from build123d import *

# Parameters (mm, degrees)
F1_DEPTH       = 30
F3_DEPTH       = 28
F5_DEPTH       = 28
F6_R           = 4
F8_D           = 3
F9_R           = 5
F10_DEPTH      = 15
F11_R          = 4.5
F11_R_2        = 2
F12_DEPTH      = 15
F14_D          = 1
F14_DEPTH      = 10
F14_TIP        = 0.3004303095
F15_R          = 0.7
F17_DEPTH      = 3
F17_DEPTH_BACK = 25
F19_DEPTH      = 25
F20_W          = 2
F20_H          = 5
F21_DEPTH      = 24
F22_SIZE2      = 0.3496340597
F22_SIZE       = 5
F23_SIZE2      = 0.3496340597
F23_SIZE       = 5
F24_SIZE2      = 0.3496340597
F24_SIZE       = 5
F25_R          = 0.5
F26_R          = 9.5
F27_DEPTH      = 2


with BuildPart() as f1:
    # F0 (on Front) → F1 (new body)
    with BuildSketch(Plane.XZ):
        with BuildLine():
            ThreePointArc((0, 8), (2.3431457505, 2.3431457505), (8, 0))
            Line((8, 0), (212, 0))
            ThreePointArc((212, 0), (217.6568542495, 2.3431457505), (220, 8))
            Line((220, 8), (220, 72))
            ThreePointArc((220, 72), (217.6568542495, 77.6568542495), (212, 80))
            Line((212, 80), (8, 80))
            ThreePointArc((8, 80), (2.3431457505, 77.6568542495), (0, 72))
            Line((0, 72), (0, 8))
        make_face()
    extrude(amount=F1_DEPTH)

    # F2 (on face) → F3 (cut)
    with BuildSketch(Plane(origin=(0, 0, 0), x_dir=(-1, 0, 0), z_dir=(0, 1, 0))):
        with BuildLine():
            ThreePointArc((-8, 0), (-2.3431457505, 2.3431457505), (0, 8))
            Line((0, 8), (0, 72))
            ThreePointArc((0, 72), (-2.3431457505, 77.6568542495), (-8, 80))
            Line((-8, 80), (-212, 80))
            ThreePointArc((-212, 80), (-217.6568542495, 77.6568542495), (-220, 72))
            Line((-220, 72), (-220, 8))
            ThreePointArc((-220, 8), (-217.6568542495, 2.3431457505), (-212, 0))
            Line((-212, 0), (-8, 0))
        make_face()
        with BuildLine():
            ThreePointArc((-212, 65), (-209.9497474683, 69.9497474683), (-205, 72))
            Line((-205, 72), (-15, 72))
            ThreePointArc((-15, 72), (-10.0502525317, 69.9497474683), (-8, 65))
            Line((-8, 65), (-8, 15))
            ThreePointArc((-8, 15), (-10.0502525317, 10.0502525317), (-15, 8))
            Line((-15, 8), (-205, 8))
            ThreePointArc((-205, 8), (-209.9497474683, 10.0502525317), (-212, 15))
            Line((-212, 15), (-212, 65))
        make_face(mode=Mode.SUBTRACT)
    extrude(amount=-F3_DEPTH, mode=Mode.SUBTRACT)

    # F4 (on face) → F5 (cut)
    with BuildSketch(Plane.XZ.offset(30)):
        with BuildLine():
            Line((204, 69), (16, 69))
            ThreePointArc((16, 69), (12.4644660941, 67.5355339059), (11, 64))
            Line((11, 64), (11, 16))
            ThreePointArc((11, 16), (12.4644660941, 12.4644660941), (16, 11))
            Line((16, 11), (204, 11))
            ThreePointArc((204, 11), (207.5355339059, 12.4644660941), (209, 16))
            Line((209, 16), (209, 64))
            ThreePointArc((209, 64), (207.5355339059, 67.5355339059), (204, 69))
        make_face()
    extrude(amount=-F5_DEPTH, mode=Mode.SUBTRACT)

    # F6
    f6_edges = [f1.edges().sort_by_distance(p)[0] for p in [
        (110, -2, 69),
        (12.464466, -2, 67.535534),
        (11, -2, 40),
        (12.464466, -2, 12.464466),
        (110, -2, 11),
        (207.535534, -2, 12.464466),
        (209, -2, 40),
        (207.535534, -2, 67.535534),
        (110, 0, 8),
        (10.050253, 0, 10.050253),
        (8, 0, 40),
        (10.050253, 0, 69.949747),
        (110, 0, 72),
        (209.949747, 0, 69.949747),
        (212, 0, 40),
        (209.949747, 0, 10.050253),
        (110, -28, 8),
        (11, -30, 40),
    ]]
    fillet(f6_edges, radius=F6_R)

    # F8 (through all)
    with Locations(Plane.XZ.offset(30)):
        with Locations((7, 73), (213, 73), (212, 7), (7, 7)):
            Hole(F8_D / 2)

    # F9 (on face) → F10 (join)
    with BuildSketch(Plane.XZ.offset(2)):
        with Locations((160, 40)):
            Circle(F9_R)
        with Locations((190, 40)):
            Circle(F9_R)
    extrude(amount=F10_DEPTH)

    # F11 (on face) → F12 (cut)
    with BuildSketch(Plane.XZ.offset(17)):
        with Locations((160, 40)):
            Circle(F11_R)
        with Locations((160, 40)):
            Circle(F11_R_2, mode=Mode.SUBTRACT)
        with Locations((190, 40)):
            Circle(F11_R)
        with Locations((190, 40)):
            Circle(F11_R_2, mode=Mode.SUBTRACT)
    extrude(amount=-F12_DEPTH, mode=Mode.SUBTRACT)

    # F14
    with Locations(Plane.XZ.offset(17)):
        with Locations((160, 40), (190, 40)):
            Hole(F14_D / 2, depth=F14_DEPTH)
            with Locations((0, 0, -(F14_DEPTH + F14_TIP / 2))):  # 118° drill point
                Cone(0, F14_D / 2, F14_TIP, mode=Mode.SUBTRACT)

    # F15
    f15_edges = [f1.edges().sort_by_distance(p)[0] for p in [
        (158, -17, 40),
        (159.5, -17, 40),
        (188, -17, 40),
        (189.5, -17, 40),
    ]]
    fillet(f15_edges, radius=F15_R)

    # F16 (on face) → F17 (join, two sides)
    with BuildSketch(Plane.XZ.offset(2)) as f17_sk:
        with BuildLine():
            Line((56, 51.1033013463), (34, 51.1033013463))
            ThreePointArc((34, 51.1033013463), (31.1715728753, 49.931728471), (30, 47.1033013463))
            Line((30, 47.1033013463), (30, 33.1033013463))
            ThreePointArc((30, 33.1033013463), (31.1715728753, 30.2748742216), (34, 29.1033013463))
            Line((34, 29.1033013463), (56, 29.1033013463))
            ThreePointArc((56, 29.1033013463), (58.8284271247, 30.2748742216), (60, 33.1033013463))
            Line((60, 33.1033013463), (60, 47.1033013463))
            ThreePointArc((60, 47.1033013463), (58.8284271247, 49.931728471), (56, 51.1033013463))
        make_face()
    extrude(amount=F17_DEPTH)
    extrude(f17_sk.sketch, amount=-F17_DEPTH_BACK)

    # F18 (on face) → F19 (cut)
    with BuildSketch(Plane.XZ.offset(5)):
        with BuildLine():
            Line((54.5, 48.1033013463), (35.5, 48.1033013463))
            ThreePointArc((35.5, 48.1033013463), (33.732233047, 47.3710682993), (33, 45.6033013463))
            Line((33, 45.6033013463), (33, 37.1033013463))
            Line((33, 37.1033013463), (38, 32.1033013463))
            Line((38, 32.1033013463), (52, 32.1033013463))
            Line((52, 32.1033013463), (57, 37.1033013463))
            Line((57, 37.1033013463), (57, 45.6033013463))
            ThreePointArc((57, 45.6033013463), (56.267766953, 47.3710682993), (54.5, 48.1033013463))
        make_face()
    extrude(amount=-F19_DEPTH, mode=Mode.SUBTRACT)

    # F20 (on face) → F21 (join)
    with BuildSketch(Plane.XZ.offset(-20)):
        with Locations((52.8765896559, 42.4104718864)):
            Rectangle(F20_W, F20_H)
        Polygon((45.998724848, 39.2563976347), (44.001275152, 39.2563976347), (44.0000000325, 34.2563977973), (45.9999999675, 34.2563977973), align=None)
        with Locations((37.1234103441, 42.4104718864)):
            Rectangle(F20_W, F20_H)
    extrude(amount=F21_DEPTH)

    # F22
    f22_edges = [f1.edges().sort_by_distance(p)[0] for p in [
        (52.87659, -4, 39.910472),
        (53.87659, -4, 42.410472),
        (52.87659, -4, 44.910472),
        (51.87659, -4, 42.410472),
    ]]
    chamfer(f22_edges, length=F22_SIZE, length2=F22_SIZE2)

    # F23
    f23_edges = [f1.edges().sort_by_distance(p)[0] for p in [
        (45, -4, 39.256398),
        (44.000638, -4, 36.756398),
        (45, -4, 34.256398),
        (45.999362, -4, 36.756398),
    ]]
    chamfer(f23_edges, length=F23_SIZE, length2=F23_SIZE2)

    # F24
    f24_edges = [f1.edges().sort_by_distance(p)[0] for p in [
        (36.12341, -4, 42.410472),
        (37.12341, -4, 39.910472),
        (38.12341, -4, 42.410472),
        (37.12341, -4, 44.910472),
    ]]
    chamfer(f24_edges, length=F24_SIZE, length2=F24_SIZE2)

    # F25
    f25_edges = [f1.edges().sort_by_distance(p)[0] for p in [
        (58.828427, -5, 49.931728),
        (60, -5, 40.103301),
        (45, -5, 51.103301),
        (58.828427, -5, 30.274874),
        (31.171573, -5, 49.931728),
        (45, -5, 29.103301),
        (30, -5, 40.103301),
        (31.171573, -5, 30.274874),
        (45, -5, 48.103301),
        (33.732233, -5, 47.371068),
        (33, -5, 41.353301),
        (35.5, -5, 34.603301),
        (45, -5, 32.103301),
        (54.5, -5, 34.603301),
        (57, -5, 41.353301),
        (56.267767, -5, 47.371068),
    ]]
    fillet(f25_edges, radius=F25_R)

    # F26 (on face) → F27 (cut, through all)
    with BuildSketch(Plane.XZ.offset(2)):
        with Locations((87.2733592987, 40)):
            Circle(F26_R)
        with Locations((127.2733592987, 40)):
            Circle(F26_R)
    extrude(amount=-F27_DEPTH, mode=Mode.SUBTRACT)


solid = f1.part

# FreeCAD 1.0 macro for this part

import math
import FreeCAD as App
import Part
import Sketcher
Q = App.Units.Quantity


def edges_at(feature, points):
    """Names of the edges that pass closest to the given points."""
    edges = feature.Shape.Edges
    near = lambda p: min(range(len(edges)), key=lambda i: edges[i].distToShape(Part.Vertex(*p))[0])
    return sorted({f"Edge{near(p) + 1}" for p in points})

doc = App.newDocument("Part")
body = doc.addObject("PartDesign::Body", "Body")

# Sketch on XZ plane
sketch1 = body.newObject("Sketcher::SketchObject", "Sketch")
sketch1.AttachmentSupport = (doc.getObject("XZ_Plane"), [""])
sketch1.MapMode = "FlatFace"
sketch1.addGeometry([
    Part.ArcOfCircle(Part.Circle(App.Vector(8, 8, 0), App.Vector(0, 0, 1), 8), math.radians(180), math.radians(270)),  # 0
    Part.LineSegment(App.Vector(8, 0, 0), App.Vector(212, 0, 0)),  # 1
    Part.ArcOfCircle(Part.Circle(App.Vector(212, 8, 0), App.Vector(0, 0, 1), 8), math.radians(-90), math.radians(0)),  # 2
    Part.LineSegment(App.Vector(220, 8, 0), App.Vector(220, 72, 0)),  # 3
    Part.ArcOfCircle(Part.Circle(App.Vector(212, 72, 0), App.Vector(0, 0, 1), 8), math.radians(0), math.radians(90)),  # 4
    Part.LineSegment(App.Vector(212, 80, 0), App.Vector(8, 80, 0)),  # 5
    Part.ArcOfCircle(Part.Circle(App.Vector(8, 72, 0), App.Vector(0, 0, 1), 8), math.radians(90), math.radians(180)),  # 6
    Part.LineSegment(App.Vector(0, 72, 0), App.Vector(0, 8, 0)),  # 7
], False)
sketch1.addConstraint([
    Sketcher.Constraint("Tangent", 0, 2, 1, 1),
    Sketcher.Constraint("Tangent", 1, 2, 2, 1),
    Sketcher.Constraint("Tangent", 2, 2, 3, 1),
    Sketcher.Constraint("Tangent", 3, 2, 4, 1),
    Sketcher.Constraint("Tangent", 4, 2, 5, 1),
    Sketcher.Constraint("Tangent", 5, 2, 6, 1),
    Sketcher.Constraint("Tangent", 6, 2, 7, 1),
    Sketcher.Constraint("Tangent", 7, 2, 0, 1),
    Sketcher.Constraint("Horizontal", 1),
    Sketcher.Constraint("Vertical", 3),
    Sketcher.Constraint("Horizontal", 5),
    Sketcher.Constraint("Vertical", 7),
    Sketcher.Constraint("Equal", 0, 2),
    Sketcher.Constraint("Equal", 2, 4),
    Sketcher.Constraint("Equal", 4, 6),
    Sketcher.Constraint("PointOnObject", 0, 2, -1),
    Sketcher.Constraint("PointOnObject", 6, 2, -2),
    Sketcher.Constraint("Radius", 0, Q("8 mm")),
    Sketcher.Constraint("DistanceX", 1, 1, 1, 2, Q("204 mm")),
    Sketcher.Constraint("DistanceY", 3, 1, 3, 2, Q("64 mm")),
])
pad1 = body.newObject("PartDesign::Pad", "Pad")
pad1.Profile = sketch1
pad1.Length = 30

# Sketch on XZ plane
sketch2 = body.newObject("Sketcher::SketchObject", "Sketch001")
sketch2.AttachmentSupport = (doc.getObject("XZ_Plane"), [""])
sketch2.MapMode = "FlatFace"
sketch2.addGeometry([
    Part.ArcOfCircle(Part.Circle(App.Vector(8, 8, 0), App.Vector(0, 0, 1), 8), math.radians(180), math.radians(270)),  # 0
    Part.LineSegment(App.Vector(0, 8, 0), App.Vector(0, 72, 0)),  # 1
    Part.ArcOfCircle(Part.Circle(App.Vector(8, 72, 0), App.Vector(0, 0, 1), 8), math.radians(90), math.radians(180)),  # 2
    Part.LineSegment(App.Vector(8, 80, 0), App.Vector(212, 80, 0)),  # 3
    Part.ArcOfCircle(Part.Circle(App.Vector(212, 72, 0), App.Vector(0, 0, 1), 8), math.radians(0), math.radians(90)),  # 4
    Part.LineSegment(App.Vector(220, 72, 0), App.Vector(220, 8, 0)),  # 5
    Part.ArcOfCircle(Part.Circle(App.Vector(212, 8, 0), App.Vector(0, 0, 1), 8), math.radians(-90), math.radians(0)),  # 6
    Part.LineSegment(App.Vector(212, 0, 0), App.Vector(8, 0, 0)),  # 7
    Part.LineSegment(App.Vector(212, 15, 0), App.Vector(212, 65, 0)),  # 8
    Part.ArcOfCircle(Part.Circle(App.Vector(205, 65, 0), App.Vector(0, 0, 1), 7), math.radians(0), math.radians(90)),  # 9
    Part.LineSegment(App.Vector(205, 72, 0), App.Vector(15, 72, 0)),  # 10
    Part.ArcOfCircle(Part.Circle(App.Vector(15, 65, 0), App.Vector(0, 0, 1), 7), math.radians(90), math.radians(180)),  # 11
    Part.LineSegment(App.Vector(8, 65, 0), App.Vector(8, 15, 0)),  # 12
    Part.ArcOfCircle(Part.Circle(App.Vector(15, 15, 0), App.Vector(0, 0, 1), 7), math.radians(180), math.radians(270)),  # 13
    Part.LineSegment(App.Vector(15, 8, 0), App.Vector(205, 8, 0)),  # 14
    Part.ArcOfCircle(Part.Circle(App.Vector(205, 15, 0), App.Vector(0, 0, 1), 7), math.radians(-90), math.radians(0)),  # 15
], False)
sketch2.addConstraint([
    Sketcher.Constraint("Tangent", 0, 1, 1, 1),
    Sketcher.Constraint("Tangent", 1, 2, 2, 2),
    Sketcher.Constraint("Tangent", 2, 1, 3, 1),
    Sketcher.Constraint("Tangent", 3, 2, 4, 2),
    Sketcher.Constraint("Tangent", 4, 1, 5, 1),
    Sketcher.Constraint("Tangent", 5, 2, 6, 2),
    Sketcher.Constraint("Tangent", 6, 1, 7, 1),
    Sketcher.Constraint("Tangent", 7, 2, 0, 2),
    Sketcher.Constraint("Tangent", 8, 2, 9, 1),
    Sketcher.Constraint("Tangent", 9, 2, 10, 1),
    Sketcher.Constraint("Tangent", 10, 2, 11, 1),
    Sketcher.Constraint("Tangent", 11, 2, 12, 1),
    Sketcher.Constraint("Tangent", 12, 2, 13, 1),
    Sketcher.Constraint("Tangent", 13, 2, 14, 1),
    Sketcher.Constraint("Tangent", 14, 2, 15, 1),
    Sketcher.Constraint("Tangent", 15, 2, 8, 1),
    Sketcher.Constraint("Vertical", 1),
    Sketcher.Constraint("Horizontal", 3),
    Sketcher.Constraint("Vertical", 5),
    Sketcher.Constraint("Horizontal", 7),
    Sketcher.Constraint("Vertical", 8),
    Sketcher.Constraint("Horizontal", 10),
    Sketcher.Constraint("Vertical", 12),
    Sketcher.Constraint("Horizontal", 14),
    Sketcher.Constraint("Equal", 0, 2),
    Sketcher.Constraint("Equal", 2, 4),
    Sketcher.Constraint("Equal", 4, 6),
    Sketcher.Constraint("Equal", 9, 11),
    Sketcher.Constraint("Equal", 11, 13),
    Sketcher.Constraint("Equal", 13, 15),
    Sketcher.Constraint("PointOnObject", 0, 1, -2),
    Sketcher.Constraint("PointOnObject", 6, 1, -1),
    Sketcher.Constraint("Horizontal", 4, 1, 9, 2),
    Sketcher.Constraint("Horizontal", 5, 2, 13, 2),
    Sketcher.Constraint("Vertical", 6, 1, 8, 2),
    Sketcher.Constraint("Vertical", 7, 2, 11, 2),
    Sketcher.Constraint("Radius", 0, Q("8 mm")),
    Sketcher.Constraint("Radius", 9, Q("7 mm")),
    Sketcher.Constraint("DistanceX", 3, 1, 3, 2, Q("204 mm")),
    Sketcher.Constraint("DistanceY", 1, 1, 1, 2, Q("64 mm")),
])
pocket1 = body.newObject("PartDesign::Pocket", "Pocket")
pocket1.Profile = sketch2
pocket1.Length = 28
pocket1.Reversed = True

# Sketch on XZ plane
sketch3 = body.newObject("Sketcher::SketchObject", "Sketch002")
sketch3.AttachmentSupport = (doc.getObject("XZ_Plane"), [""])
sketch3.MapMode = "FlatFace"
sketch3.AttachmentOffset = App.Placement(App.Vector(0, 0, 30), App.Rotation())
sketch3.addGeometry([
    Part.LineSegment(App.Vector(204, 69, 0), App.Vector(16, 69, 0)),  # 0
    Part.ArcOfCircle(Part.Circle(App.Vector(16, 64, 0), App.Vector(0, 0, 1), 5), math.radians(90), math.radians(180)),  # 1
    Part.LineSegment(App.Vector(11, 64, 0), App.Vector(11, 16, 0)),  # 2
    Part.ArcOfCircle(Part.Circle(App.Vector(16, 16, 0), App.Vector(0, 0, 1), 5), math.radians(180), math.radians(270)),  # 3
    Part.LineSegment(App.Vector(16, 11, 0), App.Vector(204, 11, 0)),  # 4
    Part.ArcOfCircle(Part.Circle(App.Vector(204, 16, 0), App.Vector(0, 0, 1), 5), math.radians(-90), math.radians(0)),  # 5
    Part.LineSegment(App.Vector(209, 16, 0), App.Vector(209, 64, 0)),  # 6
    Part.ArcOfCircle(Part.Circle(App.Vector(204, 64, 0), App.Vector(0, 0, 1), 5), math.radians(0), math.radians(90)),  # 7
], False)
sketch3.addConstraint([
    Sketcher.Constraint("Tangent", 0, 2, 1, 1),
    Sketcher.Constraint("Tangent", 1, 2, 2, 1),
    Sketcher.Constraint("Tangent", 2, 2, 3, 1),
    Sketcher.Constraint("Tangent", 3, 2, 4, 1),
    Sketcher.Constraint("Tangent", 4, 2, 5, 1),
    Sketcher.Constraint("Tangent", 5, 2, 6, 1),
    Sketcher.Constraint("Tangent", 6, 2, 7, 1),
    Sketcher.Constraint("Tangent", 7, 2, 0, 1),
    Sketcher.Constraint("Horizontal", 0),
    Sketcher.Constraint("Vertical", 2),
    Sketcher.Constraint("Horizontal", 4),
    Sketcher.Constraint("Vertical", 6),
    Sketcher.Constraint("Equal", 1, 3),
    Sketcher.Constraint("Equal", 3, 5),
    Sketcher.Constraint("Equal", 5, 7),
    Sketcher.Constraint("Radius", 1, Q("5 mm")),
    Sketcher.Constraint("DistanceX", 0, 2, 0, 1, Q("188 mm")),
    Sketcher.Constraint("DistanceY", 2, 2, 2, 1, Q("48 mm")),
    Sketcher.Constraint("DistanceX", -1, 1, 1, 3, Q("16 mm")),
    Sketcher.Constraint("DistanceY", -1, 1, 1, 3, Q("64 mm")),
])
pocket2 = body.newObject("PartDesign::Pocket", "Pocket001")
pocket2.Profile = sketch3
pocket2.Length = 28
doc.recompute()

fillet = body.newObject("PartDesign::Fillet", "Fillet")
fillet.Base = (pocket2, edges_at(pocket2, [
    (110, -2, 69),
    (12.464, -2, 67.536),
    (11, -2, 40),
    (12.464, -2, 12.464),
    (110, -2, 11),
    (207.536, -2, 12.464),
    (209, -2, 40),
    (207.536, -2, 67.536),
    (110, 0, 8),
    (10.05, 0, 10.05),
    (8, 0, 40),
    (10.05, 0, 69.95),
    (110, 0, 72),
    (209.95, 0, 69.95),
    (212, 0, 40),
    (209.95, 0, 10.05),
    (110, -28, 8),
    (11, -30, 40),
]))
fillet.Radius = 4

# Sketch on XZ plane
sketch4 = body.newObject("Sketcher::SketchObject", "Sketch003")
sketch4.AttachmentSupport = (doc.getObject("XZ_Plane"), [""])
sketch4.MapMode = "FlatFace"
sketch4.AttachmentOffset = App.Placement(App.Vector(0, 0, 30), App.Rotation())
sketch4.addGeometry([
    Part.Circle(App.Vector(7, 73, 0), App.Vector(0, 0, 1), 1.5),
    Part.Circle(App.Vector(213, 73, 0), App.Vector(0, 0, 1), 1.5),
    Part.Circle(App.Vector(212, 7, 0), App.Vector(0, 0, 1), 1.5),
    Part.Circle(App.Vector(7, 7, 0), App.Vector(0, 0, 1), 1.5),
], False)
sketch4.addConstraint([
    Sketcher.Constraint("Equal", 0, 1),
    Sketcher.Constraint("Equal", 1, 2),
    Sketcher.Constraint("Equal", 2, 3),
    Sketcher.Constraint("Horizontal", 0, 3, 1, 3),
    Sketcher.Constraint("Horizontal", 2, 3, 3, 3),
    Sketcher.Constraint("Vertical", 0, 3, 3, 3),
    Sketcher.Constraint("Diameter", 0, Q("3 mm")),
    Sketcher.Constraint("DistanceX", -1, 1, 0, 3, Q("7 mm")),
    Sketcher.Constraint("DistanceY", -1, 1, 0, 3, Q("73 mm")),
    Sketcher.Constraint("DistanceX", -1, 1, 1, 3, Q("213 mm")),
    Sketcher.Constraint("DistanceX", -1, 1, 2, 3, Q("212 mm")),
    Sketcher.Constraint("DistanceY", -1, 1, 2, 3, Q("7 mm")),
])
doc.recompute()
hole = body.newObject("PartDesign::Hole", "Hole")
hole.Profile = sketch4
hole.ThreadType = "None"
hole.Diameter = 3
hole.DepthType = "ThroughAll"

# Sketch on XZ plane
sketch5 = body.newObject("Sketcher::SketchObject", "Sketch004")
sketch5.AttachmentSupport = (doc.getObject("XZ_Plane"), [""])
sketch5.MapMode = "FlatFace"
sketch5.AttachmentOffset = App.Placement(App.Vector(0, 0, 2), App.Rotation())
sketch5.addGeometry([
    Part.Circle(App.Vector(160, 40, 0), App.Vector(0, 0, 1), 5),
    Part.Circle(App.Vector(190, 40, 0), App.Vector(0, 0, 1), 5),
], False)
sketch5.addConstraint([
    Sketcher.Constraint("Equal", 0, 1),
    Sketcher.Constraint("Horizontal", 0, 3, 1, 3),
    Sketcher.Constraint("Diameter", 0, Q("10 mm")),
    Sketcher.Constraint("DistanceX", -1, 1, 0, 3, Q("160 mm")),
    Sketcher.Constraint("DistanceY", -1, 1, 0, 3, Q("40 mm")),
    Sketcher.Constraint("DistanceX", -1, 1, 1, 3, Q("190 mm")),
])
pad2 = body.newObject("PartDesign::Pad", "Pad001")
pad2.Profile = sketch5
pad2.Length = 15

# Sketch on XZ plane
sketch6 = body.newObject("Sketcher::SketchObject", "Sketch005")
sketch6.AttachmentSupport = (doc.getObject("XZ_Plane"), [""])
sketch6.MapMode = "FlatFace"
sketch6.AttachmentOffset = App.Placement(App.Vector(0, 0, 17), App.Rotation())
sketch6.addGeometry([
    Part.Circle(App.Vector(160, 40, 0), App.Vector(0, 0, 1), 4.5),
    Part.Circle(App.Vector(160, 40, 0), App.Vector(0, 0, 1), 2),
    Part.Circle(App.Vector(190, 40, 0), App.Vector(0, 0, 1), 4.5),
    Part.Circle(App.Vector(190, 40, 0), App.Vector(0, 0, 1), 2),
], False)
sketch6.addConstraint([
    Sketcher.Constraint("Coincident", 1, 3, 0, 3),
    Sketcher.Constraint("Coincident", 3, 3, 2, 3),
    Sketcher.Constraint("Equal", 0, 2),
    Sketcher.Constraint("Equal", 1, 3),
    Sketcher.Constraint("Horizontal", 1, 3, 2, 3),
    Sketcher.Constraint("Diameter", 0, Q("9 mm")),
    Sketcher.Constraint("Diameter", 1, Q("4 mm")),
    Sketcher.Constraint("DistanceX", -1, 1, 0, 3, Q("160 mm")),
    Sketcher.Constraint("DistanceY", -1, 1, 0, 3, Q("40 mm")),
    Sketcher.Constraint("DistanceX", -1, 1, 2, 3, Q("190 mm")),
])
pocket3 = body.newObject("PartDesign::Pocket", "Pocket002")
pocket3.Profile = sketch6
pocket3.Length = 15

# Sketch on XZ plane
sketch7 = body.newObject("Sketcher::SketchObject", "Sketch006")
sketch7.AttachmentSupport = (doc.getObject("XZ_Plane"), [""])
sketch7.MapMode = "FlatFace"
sketch7.AttachmentOffset = App.Placement(App.Vector(0, 0, 17), App.Rotation())
sketch7.addGeometry([
    Part.Circle(App.Vector(160, 40, 0), App.Vector(0, 0, 1), 0.5),
    Part.Circle(App.Vector(190, 40, 0), App.Vector(0, 0, 1), 0.5),
], False)
sketch7.addConstraint([
    Sketcher.Constraint("Equal", 0, 1),
    Sketcher.Constraint("Horizontal", 0, 3, 1, 3),
    Sketcher.Constraint("Diameter", 0, Q("1 mm")),
    Sketcher.Constraint("DistanceX", -1, 1, 0, 3, Q("160 mm")),
    Sketcher.Constraint("DistanceY", -1, 1, 0, 3, Q("40 mm")),
    Sketcher.Constraint("DistanceX", -1, 1, 1, 3, Q("190 mm")),
])
doc.recompute()
hole2 = body.newObject("PartDesign::Hole", "Hole001")
hole2.Profile = sketch7
hole2.ThreadType = "None"
hole2.Diameter = 1
hole2.DepthType = "Dimension"
hole2.Depth = 10
hole2.DrillPoint = "Angled"
hole2.DrillPointAngle = 118
doc.recompute()

fillet2 = body.newObject("PartDesign::Fillet", "Fillet001")
fillet2.Base = (hole2, edges_at(hole2, [
    (158, -17, 40),
    (160.5, -17, 40),
    (188, -17, 40),
    (190.5, -17, 40),
]))
fillet2.Radius = 0.7

# Sketch on XZ plane
sketch8 = body.newObject("Sketcher::SketchObject", "Sketch007")
sketch8.AttachmentSupport = (doc.getObject("XZ_Plane"), [""])
sketch8.MapMode = "FlatFace"
sketch8.AttachmentOffset = App.Placement(App.Vector(0, 0, 2), App.Rotation())
sketch8.addGeometry([
    Part.LineSegment(App.Vector(56, 51.1, 0), App.Vector(34, 51.1, 0)),  # 0
    Part.ArcOfCircle(Part.Circle(App.Vector(34, 47.1, 0), App.Vector(0, 0, 1), 4), math.radians(90), math.radians(180)),  # 1
    Part.LineSegment(App.Vector(30, 47.1, 0), App.Vector(30, 33.1, 0)),  # 2
    Part.ArcOfCircle(Part.Circle(App.Vector(34, 33.1, 0), App.Vector(0, 0, 1), 4), math.radians(180), math.radians(270)),  # 3
    Part.LineSegment(App.Vector(34, 29.1, 0), App.Vector(56, 29.1, 0)),  # 4
    Part.ArcOfCircle(Part.Circle(App.Vector(56, 33.1, 0), App.Vector(0, 0, 1), 4), math.radians(-90), math.radians(0)),  # 5
    Part.LineSegment(App.Vector(60, 33.1, 0), App.Vector(60, 47.1, 0)),  # 6
    Part.ArcOfCircle(Part.Circle(App.Vector(56, 47.1, 0), App.Vector(0, 0, 1), 4), math.radians(0), math.radians(90)),  # 7
], False)
sketch8.addConstraint([
    Sketcher.Constraint("Tangent", 0, 2, 1, 1),
    Sketcher.Constraint("Tangent", 1, 2, 2, 1),
    Sketcher.Constraint("Tangent", 2, 2, 3, 1),
    Sketcher.Constraint("Tangent", 3, 2, 4, 1),
    Sketcher.Constraint("Tangent", 4, 2, 5, 1),
    Sketcher.Constraint("Tangent", 5, 2, 6, 1),
    Sketcher.Constraint("Tangent", 6, 2, 7, 1),
    Sketcher.Constraint("Tangent", 7, 2, 0, 1),
    Sketcher.Constraint("Horizontal", 0),
    Sketcher.Constraint("Vertical", 2),
    Sketcher.Constraint("Horizontal", 4),
    Sketcher.Constraint("Vertical", 6),
    Sketcher.Constraint("Equal", 1, 3),
    Sketcher.Constraint("Equal", 3, 5),
    Sketcher.Constraint("Equal", 5, 7),
    Sketcher.Constraint("Radius", 1, Q("4 mm")),
    Sketcher.Constraint("DistanceX", 0, 2, 0, 1, Q("22 mm")),
    Sketcher.Constraint("DistanceY", 2, 2, 2, 1, Q("14 mm")),
    Sketcher.Constraint("DistanceX", -1, 1, 1, 3, Q("34 mm")),
    Sketcher.Constraint("DistanceY", -1, 1, 1, 3, Q("47.103301 mm")),
])
pad3 = body.newObject("PartDesign::Pad", "Pad002")
pad3.Profile = sketch8
pad3.Type = "TwoLengths"
pad3.Length = 3
pad3.Length2 = 25

# Sketch on XZ plane
sketch9 = body.newObject("Sketcher::SketchObject", "Sketch008")
sketch9.AttachmentSupport = (doc.getObject("XZ_Plane"), [""])
sketch9.MapMode = "FlatFace"
sketch9.AttachmentOffset = App.Placement(App.Vector(0, 0, 5), App.Rotation())
sketch9.addGeometry([
    Part.LineSegment(App.Vector(54.5, 48.1, 0), App.Vector(35.5, 48.1, 0)),  # 0
    Part.ArcOfCircle(Part.Circle(App.Vector(35.5, 45.6, 0), App.Vector(0, 0, 1), 2.5), math.radians(90), math.radians(180)),  # 1
    Part.LineSegment(App.Vector(33, 45.6, 0), App.Vector(33, 37.1, 0)),  # 2
    Part.LineSegment(App.Vector(33, 37.1, 0), App.Vector(38, 32.1, 0)),  # 3
    Part.LineSegment(App.Vector(38, 32.1, 0), App.Vector(52, 32.1, 0)),  # 4
    Part.LineSegment(App.Vector(52, 32.1, 0), App.Vector(57, 37.1, 0)),  # 5
    Part.LineSegment(App.Vector(57, 37.1, 0), App.Vector(57, 45.6, 0)),  # 6
    Part.ArcOfCircle(Part.Circle(App.Vector(54.5, 45.6, 0), App.Vector(0, 0, 1), 2.5), math.radians(0), math.radians(90)),  # 7
], False)
sketch9.addConstraint([
    Sketcher.Constraint("Tangent", 0, 2, 1, 1),
    Sketcher.Constraint("Tangent", 1, 2, 2, 1),
    Sketcher.Constraint("Coincident", 2, 2, 3, 1),
    Sketcher.Constraint("Coincident", 3, 2, 4, 1),
    Sketcher.Constraint("Coincident", 4, 2, 5, 1),
    Sketcher.Constraint("Coincident", 5, 2, 6, 1),
    Sketcher.Constraint("Tangent", 6, 2, 7, 1),
    Sketcher.Constraint("Tangent", 7, 2, 0, 1),
    Sketcher.Constraint("Horizontal", 0),
    Sketcher.Constraint("Vertical", 2),
    Sketcher.Constraint("Horizontal", 4),
    Sketcher.Constraint("Vertical", 6),
    Sketcher.Constraint("Equal", 1, 7),
    Sketcher.Constraint("Perpendicular", 3, 5),
    Sketcher.Constraint("Horizontal", 2, 2, 5, 2),
    Sketcher.Constraint("Equal", 3, 5),
    Sketcher.Constraint("Radius", 1, Q("2.5 mm")),
    Sketcher.Constraint("DistanceX", 0, 2, 0, 1, Q("19 mm")),
    Sketcher.Constraint("DistanceX", 4, 1, 4, 2, Q("14 mm")),
    Sketcher.Constraint("DistanceY", 2, 2, 2, 1, Q("8.5 mm")),
    Sketcher.Constraint("DistanceX", -1, 1, 1, 2, Q("33 mm")),
    Sketcher.Constraint("DistanceY", -1, 1, 1, 3, Q("45.603301 mm")),
])
pocket4 = body.newObject("PartDesign::Pocket", "Pocket003")
pocket4.Profile = sketch9
pocket4.Length = 25

# Sketch on XZ plane
sketch10 = body.newObject("Sketcher::SketchObject", "Sketch009")
sketch10.AttachmentSupport = (doc.getObject("XZ_Plane"), [""])
sketch10.MapMode = "FlatFace"
sketch10.AttachmentOffset = App.Placement(App.Vector(0, 0, -20), App.Rotation())
sketch10.addGeometry([
    Part.LineSegment(App.Vector(51.9, 44.9, 0), App.Vector(51.9, 39.9, 0)),  # 0
    Part.LineSegment(App.Vector(51.9, 39.9, 0), App.Vector(53.9, 39.9, 0)),  # 1
    Part.LineSegment(App.Vector(53.9, 39.9, 0), App.Vector(53.9, 44.9, 0)),  # 2
    Part.LineSegment(App.Vector(53.9, 44.9, 0), App.Vector(51.9, 44.9, 0)),  # 3
    Part.LineSegment(App.Vector(46, 39.3, 0), App.Vector(44, 39.3, 0)),  # 4
    Part.LineSegment(App.Vector(44, 39.3, 0), App.Vector(44, 34.3, 0)),  # 5
    Part.LineSegment(App.Vector(44, 34.3, 0), App.Vector(46, 34.3, 0)),  # 6
    Part.LineSegment(App.Vector(46, 34.3, 0), App.Vector(46, 39.3, 0)),  # 7
    Part.LineSegment(App.Vector(36.1, 44.9, 0), App.Vector(36.1, 39.9, 0)),  # 8
    Part.LineSegment(App.Vector(36.1, 39.9, 0), App.Vector(38.1, 39.9, 0)),  # 9
    Part.LineSegment(App.Vector(38.1, 39.9, 0), App.Vector(38.1, 44.9, 0)),  # 10
    Part.LineSegment(App.Vector(38.1, 44.9, 0), App.Vector(36.1, 44.9, 0)),  # 11
], False)
sketch10.addConstraint([
    Sketcher.Constraint("Coincident", 0, 2, 1, 1),
    Sketcher.Constraint("Coincident", 1, 2, 2, 1),
    Sketcher.Constraint("Coincident", 2, 2, 3, 1),
    Sketcher.Constraint("Coincident", 3, 2, 0, 1),
    Sketcher.Constraint("Coincident", 4, 2, 5, 1),
    Sketcher.Constraint("Coincident", 5, 2, 6, 1),
    Sketcher.Constraint("Coincident", 6, 2, 7, 1),
    Sketcher.Constraint("Coincident", 7, 2, 4, 1),
    Sketcher.Constraint("Coincident", 8, 2, 9, 1),
    Sketcher.Constraint("Coincident", 9, 2, 10, 1),
    Sketcher.Constraint("Coincident", 10, 2, 11, 1),
    Sketcher.Constraint("Coincident", 11, 2, 8, 1),
    Sketcher.Constraint("Vertical", 0),
    Sketcher.Constraint("Horizontal", 1),
    Sketcher.Constraint("Vertical", 2),
    Sketcher.Constraint("Horizontal", 3),
    Sketcher.Constraint("Horizontal", 4),
    Sketcher.Constraint("Horizontal", 6),
    Sketcher.Constraint("Vertical", 8),
    Sketcher.Constraint("Horizontal", 9),
    Sketcher.Constraint("Vertical", 10),
    Sketcher.Constraint("Horizontal", 11),
    Sketcher.Constraint("Horizontal", 1, 2, 8, 2),
    Sketcher.Constraint("Horizontal", 3, 2, 10, 2),
    Sketcher.Constraint("Equal", 3, 6),
    Sketcher.Constraint("Equal", 6, 9),
    Sketcher.Constraint("DistanceX", 1, 1, 1, 2, Q("2 mm")),
    Sketcher.Constraint("DistanceY", 0, 2, 0, 1, Q("5 mm")),
    Sketcher.Constraint("Distance", 5, Q("5 mm")),
    Sketcher.Constraint("DistanceX", -1, 1, 5, 2, Q("44 mm")),
    Sketcher.Constraint("DistanceX", 4, 2, 4, 1, Q("1.99745 mm")),
    Sketcher.Constraint("DistanceX", -1, 1, 0, 2, Q("51.87659 mm")),
    Sketcher.Constraint("DistanceY", -1, 1, 0, 2, Q("39.910472 mm")),
    Sketcher.Constraint("DistanceX", -1, 1, 8, 2, Q("36.12341 mm")),
    Sketcher.Constraint("DistanceX", -1, 1, 4, 2, Q("44.001275 mm")),
    Sketcher.Constraint("DistanceY", -1, 1, 4, 2, Q("39.256398 mm")),
])
pad4 = body.newObject("PartDesign::Pad", "Pad003")
pad4.Profile = sketch10
pad4.Length = 24
doc.recompute()

chamfer = body.newObject("PartDesign::Chamfer", "Chamfer")
chamfer.Base = (pad4, edges_at(pad4, [
    (52.877, -4, 39.91),
    (53.877, -4, 42.41),
    (52.877, -4, 44.91),
    (51.877, -4, 42.41),
]))
chamfer.ChamferType = "Two distances"
chamfer.Size = 5
chamfer.Size2 = 0.349634
doc.recompute()

chamfer2 = body.newObject("PartDesign::Chamfer", "Chamfer001")
chamfer2.Base = (chamfer, edges_at(chamfer, [
    (45, -4, 39.256),
    (44.001, -4, 36.756),
    (45, -4, 34.256),
    (45.999, -4, 36.756),
]))
chamfer2.ChamferType = "Two distances"
chamfer2.Size = 5
chamfer2.Size2 = 0.349634
doc.recompute()

chamfer3 = body.newObject("PartDesign::Chamfer", "Chamfer002")
chamfer3.Base = (chamfer2, edges_at(chamfer2, [
    (36.123, -4, 42.41),
    (37.123, -4, 39.91),
    (38.123, -4, 42.41),
    (37.123, -4, 44.91),
]))
chamfer3.ChamferType = "Two distances"
chamfer3.Size = 5
chamfer3.Size2 = 0.349634
doc.recompute()

fillet3 = body.newObject("PartDesign::Fillet", "Fillet002")
fillet3.Base = (chamfer3, edges_at(chamfer3, [
    (58.828, -5, 49.932),
    (60, -5, 40.103),
    (45, -5, 51.103),
    (58.828, -5, 30.275),
    (31.172, -5, 49.932),
    (45, -5, 29.103),
    (30, -5, 40.103),
    (31.172, -5, 30.275),
    (45, -5, 48.103),
    (33.732, -5, 47.371),
    (33, -5, 41.353),
    (35.5, -5, 34.603),
    (45, -5, 32.103),
    (54.5, -5, 34.603),
    (57, -5, 41.353),
    (56.268, -5, 47.371),
]))
fillet3.Radius = 0.5

# Sketch on XZ plane
sketch11 = body.newObject("Sketcher::SketchObject", "Sketch010")
sketch11.AttachmentSupport = (doc.getObject("XZ_Plane"), [""])
sketch11.MapMode = "FlatFace"
sketch11.AttachmentOffset = App.Placement(App.Vector(0, 0, 2), App.Rotation())
sketch11.addGeometry([
    Part.Circle(App.Vector(87, 40, 0), App.Vector(0, 0, 1), 10),
    Part.Circle(App.Vector(127, 40, 0), App.Vector(0, 0, 1), 10),
], False)
sketch11.addConstraint([
    Sketcher.Constraint("Equal", 0, 1),
    Sketcher.Constraint("Horizontal", 0, 3, 1, 3),
    Sketcher.Constraint("Diameter", 0, Q("19 mm")),
    Sketcher.Constraint("DistanceY", -1, 1, 0, 3, Q("40 mm")),
    Sketcher.Constraint("DistanceX", 0, 3, 1, 3, Q("40 mm")),
    Sketcher.Constraint("DistanceX", -1, 1, 0, 3, Q("87.273359 mm")),
])
pocket5 = body.newObject("PartDesign::Pocket", "Pocket004")
pocket5.Profile = sketch11
pocket5.Type = "ThroughAll"

doc.recompute()
